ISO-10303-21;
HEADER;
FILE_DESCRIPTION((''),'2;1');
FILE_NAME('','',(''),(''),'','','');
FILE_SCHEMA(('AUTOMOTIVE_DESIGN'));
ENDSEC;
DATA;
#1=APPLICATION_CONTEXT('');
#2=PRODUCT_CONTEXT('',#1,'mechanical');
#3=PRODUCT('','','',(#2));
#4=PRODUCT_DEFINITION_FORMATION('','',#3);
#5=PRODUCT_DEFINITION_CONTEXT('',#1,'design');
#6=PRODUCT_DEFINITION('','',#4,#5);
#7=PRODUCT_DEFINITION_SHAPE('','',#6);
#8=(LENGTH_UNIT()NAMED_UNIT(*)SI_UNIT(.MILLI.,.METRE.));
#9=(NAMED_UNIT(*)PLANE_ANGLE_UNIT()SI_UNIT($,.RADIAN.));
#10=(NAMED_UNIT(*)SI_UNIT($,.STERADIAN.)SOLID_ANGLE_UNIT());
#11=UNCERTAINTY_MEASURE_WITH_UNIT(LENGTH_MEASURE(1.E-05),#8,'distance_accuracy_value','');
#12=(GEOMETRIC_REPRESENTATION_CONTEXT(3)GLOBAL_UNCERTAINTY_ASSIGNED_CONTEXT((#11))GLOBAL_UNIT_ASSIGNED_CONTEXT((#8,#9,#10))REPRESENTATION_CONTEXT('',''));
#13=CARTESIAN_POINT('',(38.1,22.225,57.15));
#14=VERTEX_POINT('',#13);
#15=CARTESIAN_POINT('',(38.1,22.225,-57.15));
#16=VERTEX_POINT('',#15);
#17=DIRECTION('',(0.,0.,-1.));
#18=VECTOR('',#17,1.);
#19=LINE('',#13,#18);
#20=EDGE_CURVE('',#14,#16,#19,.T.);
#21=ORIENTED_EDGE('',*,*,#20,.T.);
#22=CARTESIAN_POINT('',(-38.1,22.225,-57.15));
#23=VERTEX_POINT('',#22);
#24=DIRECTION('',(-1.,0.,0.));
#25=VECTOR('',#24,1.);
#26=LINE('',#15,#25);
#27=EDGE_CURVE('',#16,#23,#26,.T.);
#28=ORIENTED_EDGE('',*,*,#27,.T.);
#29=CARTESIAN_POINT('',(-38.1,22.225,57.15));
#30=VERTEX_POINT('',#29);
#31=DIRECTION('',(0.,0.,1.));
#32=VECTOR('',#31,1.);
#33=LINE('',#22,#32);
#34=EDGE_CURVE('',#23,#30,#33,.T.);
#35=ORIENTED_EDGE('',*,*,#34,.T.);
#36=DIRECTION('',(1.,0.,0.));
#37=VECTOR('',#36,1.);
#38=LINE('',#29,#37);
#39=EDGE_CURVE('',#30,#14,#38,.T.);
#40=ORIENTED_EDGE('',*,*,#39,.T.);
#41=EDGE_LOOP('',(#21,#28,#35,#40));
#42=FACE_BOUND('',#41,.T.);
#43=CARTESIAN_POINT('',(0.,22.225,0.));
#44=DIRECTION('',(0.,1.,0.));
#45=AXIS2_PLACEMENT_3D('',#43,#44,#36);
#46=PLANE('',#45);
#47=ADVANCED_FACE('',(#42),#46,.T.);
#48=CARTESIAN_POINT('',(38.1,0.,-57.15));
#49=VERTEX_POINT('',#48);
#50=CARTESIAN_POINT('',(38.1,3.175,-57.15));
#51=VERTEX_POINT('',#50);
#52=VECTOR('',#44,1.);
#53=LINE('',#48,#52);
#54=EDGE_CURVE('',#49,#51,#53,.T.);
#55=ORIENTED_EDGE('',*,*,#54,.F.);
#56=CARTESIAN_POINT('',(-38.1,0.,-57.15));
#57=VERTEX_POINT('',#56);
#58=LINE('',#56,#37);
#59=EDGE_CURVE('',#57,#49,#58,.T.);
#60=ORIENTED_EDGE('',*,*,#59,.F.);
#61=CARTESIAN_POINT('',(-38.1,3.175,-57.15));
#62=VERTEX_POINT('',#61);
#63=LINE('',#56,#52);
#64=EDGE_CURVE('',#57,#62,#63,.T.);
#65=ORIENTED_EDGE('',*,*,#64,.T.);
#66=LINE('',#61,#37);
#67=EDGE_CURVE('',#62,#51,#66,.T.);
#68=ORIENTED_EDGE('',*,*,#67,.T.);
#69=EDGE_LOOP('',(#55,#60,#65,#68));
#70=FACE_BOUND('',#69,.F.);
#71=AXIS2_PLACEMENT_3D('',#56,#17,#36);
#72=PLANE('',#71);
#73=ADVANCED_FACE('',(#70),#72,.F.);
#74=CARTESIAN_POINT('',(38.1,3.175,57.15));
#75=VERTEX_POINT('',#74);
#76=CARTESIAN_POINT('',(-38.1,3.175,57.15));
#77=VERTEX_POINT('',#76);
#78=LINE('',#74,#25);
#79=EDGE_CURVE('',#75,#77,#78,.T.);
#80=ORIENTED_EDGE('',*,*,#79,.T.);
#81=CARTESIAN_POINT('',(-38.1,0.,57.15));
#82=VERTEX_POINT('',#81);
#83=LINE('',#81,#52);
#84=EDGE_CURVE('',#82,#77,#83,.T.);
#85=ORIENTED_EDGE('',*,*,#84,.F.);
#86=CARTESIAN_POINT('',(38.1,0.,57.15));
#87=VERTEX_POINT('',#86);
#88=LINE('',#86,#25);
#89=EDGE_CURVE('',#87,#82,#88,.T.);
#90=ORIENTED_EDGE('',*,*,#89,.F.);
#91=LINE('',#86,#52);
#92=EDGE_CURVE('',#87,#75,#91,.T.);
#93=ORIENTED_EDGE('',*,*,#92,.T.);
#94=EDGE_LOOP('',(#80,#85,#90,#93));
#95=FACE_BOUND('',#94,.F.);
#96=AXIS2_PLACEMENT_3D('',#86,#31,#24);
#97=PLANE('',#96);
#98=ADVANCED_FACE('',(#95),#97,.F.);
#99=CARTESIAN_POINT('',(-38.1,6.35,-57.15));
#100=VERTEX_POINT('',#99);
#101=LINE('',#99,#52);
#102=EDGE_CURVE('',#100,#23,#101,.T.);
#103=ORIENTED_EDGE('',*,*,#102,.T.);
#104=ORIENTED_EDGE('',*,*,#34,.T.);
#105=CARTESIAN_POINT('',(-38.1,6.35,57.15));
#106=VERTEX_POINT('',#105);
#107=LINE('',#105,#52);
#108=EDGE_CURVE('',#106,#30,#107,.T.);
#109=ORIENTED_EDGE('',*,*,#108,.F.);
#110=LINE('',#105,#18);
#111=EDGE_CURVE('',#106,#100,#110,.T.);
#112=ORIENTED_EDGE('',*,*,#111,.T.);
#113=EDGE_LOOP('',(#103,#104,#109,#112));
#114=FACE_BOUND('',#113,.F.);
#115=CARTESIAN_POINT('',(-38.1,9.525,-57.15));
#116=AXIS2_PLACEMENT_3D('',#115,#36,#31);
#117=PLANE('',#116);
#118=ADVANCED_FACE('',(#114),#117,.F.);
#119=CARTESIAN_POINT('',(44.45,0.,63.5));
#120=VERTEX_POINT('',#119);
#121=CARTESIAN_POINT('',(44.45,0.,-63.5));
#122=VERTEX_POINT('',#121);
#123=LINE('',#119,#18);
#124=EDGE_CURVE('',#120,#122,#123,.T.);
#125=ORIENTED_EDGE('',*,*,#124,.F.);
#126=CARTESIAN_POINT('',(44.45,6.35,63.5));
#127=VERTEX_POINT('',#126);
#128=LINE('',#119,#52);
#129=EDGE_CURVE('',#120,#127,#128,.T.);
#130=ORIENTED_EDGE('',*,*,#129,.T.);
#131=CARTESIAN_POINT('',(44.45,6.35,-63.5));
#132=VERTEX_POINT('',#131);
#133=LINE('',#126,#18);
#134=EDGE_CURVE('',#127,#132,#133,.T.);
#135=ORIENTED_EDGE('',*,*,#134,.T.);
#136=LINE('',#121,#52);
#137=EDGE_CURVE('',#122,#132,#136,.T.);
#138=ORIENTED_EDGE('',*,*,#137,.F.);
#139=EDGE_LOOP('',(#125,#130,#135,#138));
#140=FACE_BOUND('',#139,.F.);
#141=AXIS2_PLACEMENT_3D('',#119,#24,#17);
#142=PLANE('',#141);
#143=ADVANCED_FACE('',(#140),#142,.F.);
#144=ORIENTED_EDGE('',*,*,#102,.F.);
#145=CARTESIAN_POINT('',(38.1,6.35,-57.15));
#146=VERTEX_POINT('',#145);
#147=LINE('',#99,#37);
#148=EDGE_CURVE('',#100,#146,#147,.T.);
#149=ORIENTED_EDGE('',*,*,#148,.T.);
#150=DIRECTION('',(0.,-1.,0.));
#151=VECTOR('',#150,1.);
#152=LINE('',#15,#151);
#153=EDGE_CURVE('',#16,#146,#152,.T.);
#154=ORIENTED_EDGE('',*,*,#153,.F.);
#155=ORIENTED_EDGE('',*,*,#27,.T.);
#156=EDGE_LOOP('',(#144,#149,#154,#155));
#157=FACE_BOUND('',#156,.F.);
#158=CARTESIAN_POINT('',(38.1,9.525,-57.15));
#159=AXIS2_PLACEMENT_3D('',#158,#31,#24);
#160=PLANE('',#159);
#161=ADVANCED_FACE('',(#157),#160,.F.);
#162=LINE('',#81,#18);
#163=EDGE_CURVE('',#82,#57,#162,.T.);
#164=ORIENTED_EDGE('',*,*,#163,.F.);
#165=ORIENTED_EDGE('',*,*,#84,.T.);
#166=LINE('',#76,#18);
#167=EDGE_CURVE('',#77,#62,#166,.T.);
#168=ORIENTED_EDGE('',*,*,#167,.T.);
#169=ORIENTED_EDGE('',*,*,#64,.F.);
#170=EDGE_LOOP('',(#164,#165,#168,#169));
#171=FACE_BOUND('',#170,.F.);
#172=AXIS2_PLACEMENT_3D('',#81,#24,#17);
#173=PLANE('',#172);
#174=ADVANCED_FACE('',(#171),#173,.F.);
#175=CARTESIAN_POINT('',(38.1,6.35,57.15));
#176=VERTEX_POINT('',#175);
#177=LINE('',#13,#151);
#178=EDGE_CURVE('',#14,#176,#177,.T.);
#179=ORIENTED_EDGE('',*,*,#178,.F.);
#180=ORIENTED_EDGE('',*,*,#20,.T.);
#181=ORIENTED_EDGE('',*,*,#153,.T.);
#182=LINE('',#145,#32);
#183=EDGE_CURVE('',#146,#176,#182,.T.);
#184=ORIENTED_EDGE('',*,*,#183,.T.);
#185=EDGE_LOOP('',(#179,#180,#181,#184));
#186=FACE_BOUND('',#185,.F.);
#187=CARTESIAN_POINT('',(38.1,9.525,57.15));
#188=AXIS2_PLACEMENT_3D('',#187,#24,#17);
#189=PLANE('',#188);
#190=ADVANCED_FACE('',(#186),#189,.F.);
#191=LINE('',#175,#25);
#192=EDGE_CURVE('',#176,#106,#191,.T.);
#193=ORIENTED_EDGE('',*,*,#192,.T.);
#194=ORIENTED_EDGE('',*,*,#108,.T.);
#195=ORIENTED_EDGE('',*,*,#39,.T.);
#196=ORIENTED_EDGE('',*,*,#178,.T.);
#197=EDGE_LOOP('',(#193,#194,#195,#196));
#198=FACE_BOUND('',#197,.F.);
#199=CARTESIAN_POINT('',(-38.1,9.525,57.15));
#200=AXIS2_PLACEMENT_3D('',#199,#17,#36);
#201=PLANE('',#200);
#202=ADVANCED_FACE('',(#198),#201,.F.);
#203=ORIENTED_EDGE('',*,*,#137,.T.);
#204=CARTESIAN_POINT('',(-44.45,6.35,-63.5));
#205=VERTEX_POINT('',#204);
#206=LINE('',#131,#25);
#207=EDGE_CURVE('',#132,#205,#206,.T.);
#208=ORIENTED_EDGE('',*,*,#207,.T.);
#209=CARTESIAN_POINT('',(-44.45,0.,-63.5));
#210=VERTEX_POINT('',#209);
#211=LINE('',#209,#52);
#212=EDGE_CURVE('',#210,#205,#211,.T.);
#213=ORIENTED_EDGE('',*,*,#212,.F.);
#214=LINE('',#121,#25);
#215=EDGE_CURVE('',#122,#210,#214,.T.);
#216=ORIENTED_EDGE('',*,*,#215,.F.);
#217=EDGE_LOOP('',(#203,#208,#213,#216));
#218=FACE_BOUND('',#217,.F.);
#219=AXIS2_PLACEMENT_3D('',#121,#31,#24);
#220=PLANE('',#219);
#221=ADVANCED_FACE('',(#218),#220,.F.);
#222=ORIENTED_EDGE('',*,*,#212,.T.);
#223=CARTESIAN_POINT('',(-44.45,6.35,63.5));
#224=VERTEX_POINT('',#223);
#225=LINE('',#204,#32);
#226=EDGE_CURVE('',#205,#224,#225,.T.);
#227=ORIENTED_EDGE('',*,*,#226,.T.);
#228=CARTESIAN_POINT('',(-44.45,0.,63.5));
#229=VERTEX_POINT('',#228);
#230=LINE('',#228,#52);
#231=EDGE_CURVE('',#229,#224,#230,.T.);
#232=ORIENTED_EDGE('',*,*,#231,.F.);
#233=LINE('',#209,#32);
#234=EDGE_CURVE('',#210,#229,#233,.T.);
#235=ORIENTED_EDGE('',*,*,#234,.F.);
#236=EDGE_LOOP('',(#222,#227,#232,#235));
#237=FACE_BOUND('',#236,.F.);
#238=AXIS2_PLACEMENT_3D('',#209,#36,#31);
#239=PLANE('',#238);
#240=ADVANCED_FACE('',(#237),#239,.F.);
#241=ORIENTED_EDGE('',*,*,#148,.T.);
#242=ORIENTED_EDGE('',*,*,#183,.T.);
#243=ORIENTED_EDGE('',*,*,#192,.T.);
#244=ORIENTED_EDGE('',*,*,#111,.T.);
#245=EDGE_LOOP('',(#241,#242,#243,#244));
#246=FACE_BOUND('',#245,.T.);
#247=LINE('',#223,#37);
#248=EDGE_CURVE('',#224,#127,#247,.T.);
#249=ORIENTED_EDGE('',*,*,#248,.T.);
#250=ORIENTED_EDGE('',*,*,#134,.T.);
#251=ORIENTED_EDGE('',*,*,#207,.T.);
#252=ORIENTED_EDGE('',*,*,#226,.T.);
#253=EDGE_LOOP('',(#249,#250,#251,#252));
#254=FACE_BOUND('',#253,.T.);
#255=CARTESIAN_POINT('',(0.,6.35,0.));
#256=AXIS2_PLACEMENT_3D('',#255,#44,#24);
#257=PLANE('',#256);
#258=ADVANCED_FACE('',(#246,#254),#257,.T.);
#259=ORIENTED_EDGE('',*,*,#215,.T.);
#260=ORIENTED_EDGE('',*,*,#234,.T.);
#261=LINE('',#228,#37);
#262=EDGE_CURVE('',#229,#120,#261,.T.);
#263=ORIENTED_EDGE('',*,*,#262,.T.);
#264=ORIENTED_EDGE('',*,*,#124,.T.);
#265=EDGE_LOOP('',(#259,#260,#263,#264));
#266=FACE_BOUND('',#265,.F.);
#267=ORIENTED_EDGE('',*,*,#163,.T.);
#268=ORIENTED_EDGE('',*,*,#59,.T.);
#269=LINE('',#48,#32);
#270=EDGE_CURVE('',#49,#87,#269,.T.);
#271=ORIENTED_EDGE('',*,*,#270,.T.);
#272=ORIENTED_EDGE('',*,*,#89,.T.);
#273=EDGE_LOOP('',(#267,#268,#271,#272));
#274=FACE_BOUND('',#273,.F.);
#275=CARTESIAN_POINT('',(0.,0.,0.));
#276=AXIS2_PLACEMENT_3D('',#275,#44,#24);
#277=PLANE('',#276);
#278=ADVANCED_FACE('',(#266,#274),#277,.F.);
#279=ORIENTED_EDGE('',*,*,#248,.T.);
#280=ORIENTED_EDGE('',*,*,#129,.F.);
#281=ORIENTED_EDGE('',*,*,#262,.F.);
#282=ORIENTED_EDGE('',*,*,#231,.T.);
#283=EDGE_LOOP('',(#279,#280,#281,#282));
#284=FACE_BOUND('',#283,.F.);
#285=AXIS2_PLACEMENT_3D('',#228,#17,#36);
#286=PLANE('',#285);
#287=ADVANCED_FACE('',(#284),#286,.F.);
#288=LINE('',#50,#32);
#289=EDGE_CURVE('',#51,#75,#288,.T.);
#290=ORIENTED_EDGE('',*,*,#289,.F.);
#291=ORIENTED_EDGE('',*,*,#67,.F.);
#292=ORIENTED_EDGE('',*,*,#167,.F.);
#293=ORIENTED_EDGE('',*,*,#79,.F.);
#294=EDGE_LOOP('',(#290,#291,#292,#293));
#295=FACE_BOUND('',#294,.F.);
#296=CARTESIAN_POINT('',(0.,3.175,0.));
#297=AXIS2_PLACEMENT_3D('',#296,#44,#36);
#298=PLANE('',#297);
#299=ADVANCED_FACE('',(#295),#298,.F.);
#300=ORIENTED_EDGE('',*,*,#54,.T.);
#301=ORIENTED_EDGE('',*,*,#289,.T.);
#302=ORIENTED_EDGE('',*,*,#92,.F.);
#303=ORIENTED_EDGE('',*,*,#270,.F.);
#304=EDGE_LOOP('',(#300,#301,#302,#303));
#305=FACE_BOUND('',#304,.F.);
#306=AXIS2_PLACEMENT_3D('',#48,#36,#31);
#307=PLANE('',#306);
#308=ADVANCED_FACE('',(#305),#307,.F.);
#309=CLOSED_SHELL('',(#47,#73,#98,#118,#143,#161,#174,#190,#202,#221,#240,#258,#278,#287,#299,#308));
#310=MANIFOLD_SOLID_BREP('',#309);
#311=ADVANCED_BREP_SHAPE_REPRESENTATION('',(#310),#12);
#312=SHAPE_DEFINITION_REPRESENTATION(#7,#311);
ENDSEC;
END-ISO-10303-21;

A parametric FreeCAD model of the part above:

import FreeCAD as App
import Part
import Sketcher
from FreeCAD import Vector
Q = App.Units.Quantity

doc = App.newDocument("Part")
params = doc.addObject("Spreadsheet::Sheet", "Params")
for row, (alias, value) in enumerate([
    ("sketch1_width", "3 in"),
    ("sketch1_height", "4.5 in"),
    ("sketch1_height2", "5 in"),
    ("pad1_length", "0.25 in"),
    ("sketch2_width", "3 in"),
    ("sketch2_height", "4.5 in"),
    ("pad2_length", "0.25 in"),
    ("sketch3_width", "3 in"),
    ("sketch3_height", "4.5 in"),
    ("pad3_length", "0.5 in"),
], start=1):
    params.set(f"A{row}", alias)
    params.set(f"B{row}", "=" + value)
    params.setAlias(f"B{row}", alias)

body = doc.addObject("PartDesign::Body", "Body")

# Sketch on XZ plane
sketch1 = doc.addObject("Sketcher::SketchObject", "Sketch")
body.addObject(sketch1)
sketch1.AttachmentSupport = (doc.XZ_Plane, [""])
sketch1.MapMode = "FlatFace"
sketch1.addGeometry([
    Part.LineSegment(Vector(44.45, -63.5, 0), Vector(-44.45, -63.5, 0)),  # 0
    Part.LineSegment(Vector(-44.45, -63.5, 0), Vector(-44.45, 63.5, 0)),  # 1
    Part.LineSegment(Vector(-44.45, 63.5, 0), Vector(44.45, 63.5, 0)),  # 2
    Part.LineSegment(Vector(44.45, 63.5, 0), Vector(44.45, -63.5, 0)),  # 3
    Part.LineSegment(Vector(38.1, -57.15, 0), Vector(38.1, 57.15, 0)),  # 4
    Part.LineSegment(Vector(38.1, 57.15, 0), Vector(-38.1, 57.15, 0)),  # 5
    Part.LineSegment(Vector(-38.1, 57.15, 0), Vector(-38.1, -57.15, 0)),  # 6
    Part.LineSegment(Vector(-38.1, -57.15, 0), Vector(38.1, -57.15, 0)),  # 7
], False)
sketch1.addConstraint([
    Sketcher.Constraint("Coincident", 0, 2, 1, 1),
    Sketcher.Constraint("Coincident", 1, 2, 2, 1),
    Sketcher.Constraint("Coincident", 2, 2, 3, 1),
    Sketcher.Constraint("Coincident", 3, 2, 0, 1),
    Sketcher.Constraint("Coincident", 4, 2, 5, 1),
    Sketcher.Constraint("Coincident", 5, 2, 6, 1),
    Sketcher.Constraint("Coincident", 6, 2, 7, 1),
    Sketcher.Constraint("Coincident", 7, 2, 4, 1),
    Sketcher.Constraint("Horizontal", 0),
    Sketcher.Constraint("Vertical", 1),
    Sketcher.Constraint("Horizontal", 2),
    Sketcher.Constraint("Vertical", 3),
    Sketcher.Constraint("Vertical", 4),
    Sketcher.Constraint("Horizontal", 5),
    Sketcher.Constraint("Vertical", 6),
    Sketcher.Constraint("Horizontal", 7),
    Sketcher.Constraint("Symmetric", 0, 2, 2, 2, -1, 1),
    Sketcher.Constraint("Symmetric", 4, 2, 6, 2, -1, 1),
    Sketcher.Constraint("DistanceX", 5, 2, 5, 1, Q("3 in")),
    Sketcher.Constraint("DistanceY", 4, 1, 4, 2, Q("4.5 in")),
    Sketcher.Constraint("DistanceY", 1, 1, 1, 2, Q("5 in")),
    Sketcher.Constraint("DistanceX", 4, 2, 2, 2, Q("0.25 in")),
])
sketch1.setExpression("Constraints[18]", "Params.sketch1_width")
sketch1.setExpression("Constraints[19]", "Params.sketch1_height")
sketch1.setExpression("Constraints[20]", "Params.sketch1_height2")
pad1 = doc.addObject("PartDesign::Pad", "Pad")
body.addObject(pad1)
pad1.Profile = sketch1
pad1.setExpression("Length", "Params.pad1_length")
pad1.Reversed = True

# Sketch on XZ plane
sketch2 = doc.addObject("Sketcher::SketchObject", "Sketch001")
body.addObject(sketch2)
sketch2.AttachmentSupport = (doc.XZ_Plane, [""])
sketch2.MapMode = "FlatFace"
sketch2.AttachmentOffset = App.Placement(Vector(0, 0, -0.25 * 25.4), App.Rotation())
sketch2.addGeometry([
    Part.LineSegment(Vector(-38.1, -57.15, 0), Vector(-38.1, 57.15, 0)),
    Part.LineSegment(Vector(-38.1, 57.15, 0), Vector(38.1, 57.15, 0)),
    Part.LineSegment(Vector(38.1, 57.15, 0), Vector(38.1, -57.15, 0)),
    Part.LineSegment(Vector(38.1, -57.15, 0), Vector(-38.1, -57.15, 0)),
], False)
sketch2.addConstraint([
    Sketcher.Constraint("Coincident", 0, 2, 1, 1),
    Sketcher.Constraint("Coincident", 1, 2, 2, 1),
    Sketcher.Constraint("Coincident", 2, 2, 3, 1),
    Sketcher.Constraint("Coincident", 3, 2, 0, 1),
    Sketcher.Constraint("Vertical", 0),
    Sketcher.Constraint("Horizontal", 1),
    Sketcher.Constraint("Vertical", 2),
    Sketcher.Constraint("Horizontal", 3),
    Sketcher.Constraint("Symmetric", 0, 2, 2, 2, -1, 1),
    Sketcher.Constraint("DistanceX", 1, 1, 1, 2, Q("3 in")),
    Sketcher.Constraint("DistanceY", 0, 1, 0, 2, Q("4.5 in")),
])
sketch2.setExpression("Constraints[9]", "Params.sketch2_width")
sketch2.setExpression("Constraints[10]", "Params.sketch2_height")
pad2 = doc.addObject("PartDesign::Pad", "Pad001")
body.addObject(pad2)
pad2.Profile = sketch2
pad2.setExpression("Length", "Params.pad2_length")
pad2.Midplane = True

# Sketch on XZ plane
sketch3 = doc.addObject("Sketcher::SketchObject", "Sketch002")
body.addObject(sketch3)
sketch3.AttachmentSupport = (doc.XZ_Plane, [""])
sketch3.MapMode = "FlatFace"
sketch3.AttachmentOffset = App.Placement(Vector(0, 0, -0.375 * 25.4), App.Rotation())
sketch3.addGeometry([
    Part.LineSegment(Vector(38.1, -57.15, 0), Vector(-38.1, -57.15, 0)),
    Part.LineSegment(Vector(-38.1, -57.15, 0), Vector(-38.1, 57.15, 0)),
    Part.LineSegment(Vector(-38.1, 57.15, 0), Vector(38.1, 57.15, 0)),
    Part.LineSegment(Vector(38.1, 57.15, 0), Vector(38.1, -57.15, 0)),
], False)
sketch3.addConstraint([
    Sketcher.Constraint("Coincident", 0, 2, 1, 1),
    Sketcher.Constraint("Coincident", 1, 2, 2, 1),
    Sketcher.Constraint("Coincident", 2, 2, 3, 1),
    Sketcher.Constraint("Coincident", 3, 2, 0, 1),
    Sketcher.Constraint("Horizontal", 0),
    Sketcher.Constraint("Vertical", 1),
    Sketcher.Constraint("Horizontal", 2),
    Sketcher.Constraint("Vertical", 3),
    Sketcher.Constraint("Symmetric", 0, 2, 2, 2, -1, 1),
    Sketcher.Constraint("DistanceX", 0, 2, 0, 1, Q("3 in")),
    Sketcher.Constraint("DistanceY", 1, 1, 1, 2, Q("4.5 in")),
])
sketch3.setExpression("Constraints[9]", "Params.sketch3_width")
sketch3.setExpression("Constraints[10]", "Params.sketch3_height")
pad3 = doc.addObject("PartDesign::Pad", "Pad002")
body.addObject(pad3)
pad3.Profile = sketch3
pad3.setExpression("Length", "Params.pad3_length")
pad3.Reversed = True

doc.recompute()
